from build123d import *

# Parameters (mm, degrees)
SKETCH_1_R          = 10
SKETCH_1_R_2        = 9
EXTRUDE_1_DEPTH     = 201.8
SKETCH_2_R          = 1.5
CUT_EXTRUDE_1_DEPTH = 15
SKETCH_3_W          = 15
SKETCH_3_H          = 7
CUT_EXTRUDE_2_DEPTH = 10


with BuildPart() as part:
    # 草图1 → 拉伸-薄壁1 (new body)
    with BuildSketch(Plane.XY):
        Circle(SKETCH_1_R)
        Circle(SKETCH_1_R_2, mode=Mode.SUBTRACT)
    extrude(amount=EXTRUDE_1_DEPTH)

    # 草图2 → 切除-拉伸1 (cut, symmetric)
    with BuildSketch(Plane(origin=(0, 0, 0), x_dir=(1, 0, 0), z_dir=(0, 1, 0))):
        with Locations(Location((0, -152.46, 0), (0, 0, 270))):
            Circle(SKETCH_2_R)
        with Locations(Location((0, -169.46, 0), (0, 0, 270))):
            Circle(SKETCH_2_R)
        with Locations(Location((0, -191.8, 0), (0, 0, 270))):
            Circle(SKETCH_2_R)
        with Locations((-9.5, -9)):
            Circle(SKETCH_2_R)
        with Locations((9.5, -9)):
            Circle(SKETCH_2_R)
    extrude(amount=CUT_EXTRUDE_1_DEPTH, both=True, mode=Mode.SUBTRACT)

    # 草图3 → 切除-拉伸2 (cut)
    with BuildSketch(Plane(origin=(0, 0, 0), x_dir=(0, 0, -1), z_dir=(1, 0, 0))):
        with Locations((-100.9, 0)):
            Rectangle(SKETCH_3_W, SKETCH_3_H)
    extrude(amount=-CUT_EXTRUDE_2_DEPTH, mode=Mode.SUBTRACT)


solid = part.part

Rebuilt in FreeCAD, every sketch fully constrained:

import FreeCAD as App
import Part
import Sketcher
from FreeCAD import Vector
Q = App.Units.Quantity


def add_polygon(sketch, points):
    """Adds a closed chain of lines whose ends are joined by coincident constraints."""
    first, n = sketch.GeometryCount, len(points)
    for a, b in zip(points, points[1:] + points[:1]):
        sketch.addGeometry(Part.LineSegment(App.Vector(*a, 0), App.Vector(*b, 0)), False)
    for i in range(n):
        sketch.addConstraint(Sketcher.Constraint("Coincident", first + i, 2, first + (i + 1) % n, 1))

doc = App.newDocument("Part")
body = doc.addObject("PartDesign::Body", "Body")

# Sketch on XY plane
sketch1 = body.newObject("Sketcher::SketchObject", "Sketch")
sketch1.AttachmentSupport = (doc.getObject("XY_Plane"), [""])
sketch1.MapMode = "FlatFace"
sketch1.addGeometry(Part.Circle(Vector(0, 0, 0), Vector(0, 0, 1), 10), False)
sketch1.addGeometry(Part.Circle(Vector(0, 0, 0), Vector(0, 0, 1), 9), False)
sketch1.addConstraint(Sketcher.Constraint("Coincident", 0, 3, -1, 1))
sketch1.addConstraint(Sketcher.Constraint("Coincident", 1, 3, -1, 1))
sketch1.addConstraint(Sketcher.Constraint("Diameter", 0, Q("20 mm")))
sketch1.addConstraint(Sketcher.Constraint("Diameter", 1, Q("18 mm")))
pad1 = body.newObject("PartDesign::Pad", "Pad")
pad1.Profile = sketch1
pad1.Length = 201.8

# Sketch on XZ plane
sketch2 = body.newObject("Sketcher::SketchObject", "Sketch001")
sketch2.AttachmentSupport = (doc.getObject("XZ_Plane"), [""])
sketch2.MapMode = "FlatFace"
sketch2.addGeometry(Part.Circle(Vector(0, 152.5, 0), Vector(0, 0, 1), 1.5), False)
sketch2.addGeometry(Part.Circle(Vector(0, 169.5, 0), Vector(0, 0, 1), 1.5), False)
sketch2.addGeometry(Part.Circle(Vector(0, 191.8, 0), Vector(0, 0, 1), 1.5), False)
sketch2.addGeometry(Part.Circle(Vector(-9.5, 9, 0), Vector(0, 0, 1), 1.5), False)
sketch2.addGeometry(Part.Circle(Vector(9.5, 9, 0), Vector(0, 0, 1), 1.5), False)
sketch2.addConstraint(Sketcher.Constraint("Equal", 0, 1))
sketch2.addConstraint(Sketcher.Constraint("Equal", 1, 2))
sketch2.addConstraint(Sketcher.Constraint("Equal", 2, 3))
sketch2.addConstraint(Sketcher.Constraint("Equal", 3, 4))
sketch2.addConstraint(Sketcher.Constraint("Symmetric", 3, 3, 4, 3, -2))
sketch2.addConstraint(Sketcher.Constraint("PointOnObject", 0, 3, -2))
sketch2.addConstraint(Sketcher.Constraint("PointOnObject", 1, 3, -2))
sketch2.addConstraint(Sketcher.Constraint("PointOnObject", 2, 3, -2))
sketch2.addConstraint(Sketcher.Constraint("Diameter", 0, Q("3 mm")))
sketch2.addConstraint(Sketcher.Constraint("DistanceY", -1, 1, 3, 3, Q("9 mm")))
sketch2.addConstraint(Sketcher.Constraint("DistanceY", 0, 3, 1, 3, Q("17 mm")))
sketch2.addConstraint(Sketcher.Constraint("DistanceX", 3, 3, 4, 3, Q("19 mm")))
sketch2.addConstraint(Sketcher.Constraint("DistanceY", -1, 1, 2, 3, Q("191.8 mm")))
sketch2.addConstraint(Sketcher.Constraint("DistanceY", -1, 1, 0, 3, Q("152.46 mm")))
pocket1 = body.newObject("PartDesign::Pocket", "Pocket")
pocket1.Profile = sketch2
pocket1.Length = 30
pocket1.Midplane = True

# Sketch on YZ plane
sketch3 = body.newObject("Sketcher::SketchObject", "Sketch002")
sketch3.AttachmentSupport = (doc.getObject("YZ_Plane"), [""])
sketch3.MapMode = "FlatFace"
add_polygon(sketch3, [(4, 108), (-4, 108), (-4, 93), (4, 93)])  # lines 0-3
sketch3.addConstraint(Sketcher.Constraint("Horizontal", 0))
sketch3.addConstraint(Sketcher.Constraint("Vertical", 1))
sketch3.addConstraint(Sketcher.Constraint("Horizontal", 2))
sketch3.addConstraint(Sketcher.Constraint("Vertical", 3))
sketch3.addConstraint(Sketcher.Constraint("DistanceX", 0, 2, 0, 1, Q("7 mm")))
sketch3.addConstraint(Sketcher.Constraint("DistanceY", 1, 2, 1, 1, Q("15 mm")))
sketch3.addConstraint(Sketcher.Constraint("DistanceX", 0, 2, -1, 1, Q("3.5 mm")))
sketch3.addConstraint(Sketcher.Constraint("DistanceY", -1, 1, 0, 2, Q("108.4 mm")))
pocket2 = body.newObject("PartDesign::Pocket", "Pocket001")
pocket2.Profile = sketch3
pocket2.Length = 10

doc.recompute()
